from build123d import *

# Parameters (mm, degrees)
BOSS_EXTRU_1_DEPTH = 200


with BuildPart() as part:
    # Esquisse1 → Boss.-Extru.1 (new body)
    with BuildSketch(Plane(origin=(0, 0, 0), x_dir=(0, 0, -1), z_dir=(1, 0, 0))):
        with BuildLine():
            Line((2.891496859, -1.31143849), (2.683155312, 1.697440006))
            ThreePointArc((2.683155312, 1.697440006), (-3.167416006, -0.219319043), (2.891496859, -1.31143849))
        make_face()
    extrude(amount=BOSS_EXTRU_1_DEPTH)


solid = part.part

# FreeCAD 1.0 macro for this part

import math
import FreeCAD as App
import Part
import Sketcher
from FreeCAD import Vector

doc = App.newDocument("Part")
params = doc.addObject("Spreadsheet::Sheet", "Params")
for row, (alias, value) in enumerate([
    ("pad1_length", "200 mm"),
], start=1):
    params.set(f"A{row}", alias)
    params.set(f"B{row}", "=" + value)
    params.setAlias(f"B{row}", alias)

body = doc.addObject("PartDesign::Body", "Body")

# Sketch on YZ plane
sketch1 = body.newObject("Sketcher::SketchObject", "Sketch")
sketch1.AttachmentSupport = (doc.getObject("YZ_Plane"), [""])
sketch1.MapMode = "FlatFace"
sketch1.addGeometry([
    Part.LineSegment(Vector(-1.3, -2.9, 0), Vector(1.7, -2.7, 0)),
    Part.ArcOfCircle(Part.Circle(Vector(0, 0, 0), Vector(0, 0, 1), 3.2), math.radians(-58), math.radians(246)),
], False)
sketch1.addConstraint([
    Sketcher.Constraint("Coincident", 0, 1, 1, 2),
    Sketcher.Constraint("Coincident", 1, 1, 0, 2),
    Sketcher.Constraint("Coincident", 1, 3, -1, 1),
    Sketcher.Constraint("Radius", 1, 3.175),
    Sketcher.Constraint("DistanceX", 0, 1, -1, 1, 1.311438),
    Sketcher.Constraint("DistanceX", -1, 1, 1, 1, 1.69744),
])
pad1 = body.newObject("PartDesign::Pad", "Pad")
pad1.Profile = sketch1
pad1.setExpression("Length", "Params.pad1_length")

doc.recompute()
